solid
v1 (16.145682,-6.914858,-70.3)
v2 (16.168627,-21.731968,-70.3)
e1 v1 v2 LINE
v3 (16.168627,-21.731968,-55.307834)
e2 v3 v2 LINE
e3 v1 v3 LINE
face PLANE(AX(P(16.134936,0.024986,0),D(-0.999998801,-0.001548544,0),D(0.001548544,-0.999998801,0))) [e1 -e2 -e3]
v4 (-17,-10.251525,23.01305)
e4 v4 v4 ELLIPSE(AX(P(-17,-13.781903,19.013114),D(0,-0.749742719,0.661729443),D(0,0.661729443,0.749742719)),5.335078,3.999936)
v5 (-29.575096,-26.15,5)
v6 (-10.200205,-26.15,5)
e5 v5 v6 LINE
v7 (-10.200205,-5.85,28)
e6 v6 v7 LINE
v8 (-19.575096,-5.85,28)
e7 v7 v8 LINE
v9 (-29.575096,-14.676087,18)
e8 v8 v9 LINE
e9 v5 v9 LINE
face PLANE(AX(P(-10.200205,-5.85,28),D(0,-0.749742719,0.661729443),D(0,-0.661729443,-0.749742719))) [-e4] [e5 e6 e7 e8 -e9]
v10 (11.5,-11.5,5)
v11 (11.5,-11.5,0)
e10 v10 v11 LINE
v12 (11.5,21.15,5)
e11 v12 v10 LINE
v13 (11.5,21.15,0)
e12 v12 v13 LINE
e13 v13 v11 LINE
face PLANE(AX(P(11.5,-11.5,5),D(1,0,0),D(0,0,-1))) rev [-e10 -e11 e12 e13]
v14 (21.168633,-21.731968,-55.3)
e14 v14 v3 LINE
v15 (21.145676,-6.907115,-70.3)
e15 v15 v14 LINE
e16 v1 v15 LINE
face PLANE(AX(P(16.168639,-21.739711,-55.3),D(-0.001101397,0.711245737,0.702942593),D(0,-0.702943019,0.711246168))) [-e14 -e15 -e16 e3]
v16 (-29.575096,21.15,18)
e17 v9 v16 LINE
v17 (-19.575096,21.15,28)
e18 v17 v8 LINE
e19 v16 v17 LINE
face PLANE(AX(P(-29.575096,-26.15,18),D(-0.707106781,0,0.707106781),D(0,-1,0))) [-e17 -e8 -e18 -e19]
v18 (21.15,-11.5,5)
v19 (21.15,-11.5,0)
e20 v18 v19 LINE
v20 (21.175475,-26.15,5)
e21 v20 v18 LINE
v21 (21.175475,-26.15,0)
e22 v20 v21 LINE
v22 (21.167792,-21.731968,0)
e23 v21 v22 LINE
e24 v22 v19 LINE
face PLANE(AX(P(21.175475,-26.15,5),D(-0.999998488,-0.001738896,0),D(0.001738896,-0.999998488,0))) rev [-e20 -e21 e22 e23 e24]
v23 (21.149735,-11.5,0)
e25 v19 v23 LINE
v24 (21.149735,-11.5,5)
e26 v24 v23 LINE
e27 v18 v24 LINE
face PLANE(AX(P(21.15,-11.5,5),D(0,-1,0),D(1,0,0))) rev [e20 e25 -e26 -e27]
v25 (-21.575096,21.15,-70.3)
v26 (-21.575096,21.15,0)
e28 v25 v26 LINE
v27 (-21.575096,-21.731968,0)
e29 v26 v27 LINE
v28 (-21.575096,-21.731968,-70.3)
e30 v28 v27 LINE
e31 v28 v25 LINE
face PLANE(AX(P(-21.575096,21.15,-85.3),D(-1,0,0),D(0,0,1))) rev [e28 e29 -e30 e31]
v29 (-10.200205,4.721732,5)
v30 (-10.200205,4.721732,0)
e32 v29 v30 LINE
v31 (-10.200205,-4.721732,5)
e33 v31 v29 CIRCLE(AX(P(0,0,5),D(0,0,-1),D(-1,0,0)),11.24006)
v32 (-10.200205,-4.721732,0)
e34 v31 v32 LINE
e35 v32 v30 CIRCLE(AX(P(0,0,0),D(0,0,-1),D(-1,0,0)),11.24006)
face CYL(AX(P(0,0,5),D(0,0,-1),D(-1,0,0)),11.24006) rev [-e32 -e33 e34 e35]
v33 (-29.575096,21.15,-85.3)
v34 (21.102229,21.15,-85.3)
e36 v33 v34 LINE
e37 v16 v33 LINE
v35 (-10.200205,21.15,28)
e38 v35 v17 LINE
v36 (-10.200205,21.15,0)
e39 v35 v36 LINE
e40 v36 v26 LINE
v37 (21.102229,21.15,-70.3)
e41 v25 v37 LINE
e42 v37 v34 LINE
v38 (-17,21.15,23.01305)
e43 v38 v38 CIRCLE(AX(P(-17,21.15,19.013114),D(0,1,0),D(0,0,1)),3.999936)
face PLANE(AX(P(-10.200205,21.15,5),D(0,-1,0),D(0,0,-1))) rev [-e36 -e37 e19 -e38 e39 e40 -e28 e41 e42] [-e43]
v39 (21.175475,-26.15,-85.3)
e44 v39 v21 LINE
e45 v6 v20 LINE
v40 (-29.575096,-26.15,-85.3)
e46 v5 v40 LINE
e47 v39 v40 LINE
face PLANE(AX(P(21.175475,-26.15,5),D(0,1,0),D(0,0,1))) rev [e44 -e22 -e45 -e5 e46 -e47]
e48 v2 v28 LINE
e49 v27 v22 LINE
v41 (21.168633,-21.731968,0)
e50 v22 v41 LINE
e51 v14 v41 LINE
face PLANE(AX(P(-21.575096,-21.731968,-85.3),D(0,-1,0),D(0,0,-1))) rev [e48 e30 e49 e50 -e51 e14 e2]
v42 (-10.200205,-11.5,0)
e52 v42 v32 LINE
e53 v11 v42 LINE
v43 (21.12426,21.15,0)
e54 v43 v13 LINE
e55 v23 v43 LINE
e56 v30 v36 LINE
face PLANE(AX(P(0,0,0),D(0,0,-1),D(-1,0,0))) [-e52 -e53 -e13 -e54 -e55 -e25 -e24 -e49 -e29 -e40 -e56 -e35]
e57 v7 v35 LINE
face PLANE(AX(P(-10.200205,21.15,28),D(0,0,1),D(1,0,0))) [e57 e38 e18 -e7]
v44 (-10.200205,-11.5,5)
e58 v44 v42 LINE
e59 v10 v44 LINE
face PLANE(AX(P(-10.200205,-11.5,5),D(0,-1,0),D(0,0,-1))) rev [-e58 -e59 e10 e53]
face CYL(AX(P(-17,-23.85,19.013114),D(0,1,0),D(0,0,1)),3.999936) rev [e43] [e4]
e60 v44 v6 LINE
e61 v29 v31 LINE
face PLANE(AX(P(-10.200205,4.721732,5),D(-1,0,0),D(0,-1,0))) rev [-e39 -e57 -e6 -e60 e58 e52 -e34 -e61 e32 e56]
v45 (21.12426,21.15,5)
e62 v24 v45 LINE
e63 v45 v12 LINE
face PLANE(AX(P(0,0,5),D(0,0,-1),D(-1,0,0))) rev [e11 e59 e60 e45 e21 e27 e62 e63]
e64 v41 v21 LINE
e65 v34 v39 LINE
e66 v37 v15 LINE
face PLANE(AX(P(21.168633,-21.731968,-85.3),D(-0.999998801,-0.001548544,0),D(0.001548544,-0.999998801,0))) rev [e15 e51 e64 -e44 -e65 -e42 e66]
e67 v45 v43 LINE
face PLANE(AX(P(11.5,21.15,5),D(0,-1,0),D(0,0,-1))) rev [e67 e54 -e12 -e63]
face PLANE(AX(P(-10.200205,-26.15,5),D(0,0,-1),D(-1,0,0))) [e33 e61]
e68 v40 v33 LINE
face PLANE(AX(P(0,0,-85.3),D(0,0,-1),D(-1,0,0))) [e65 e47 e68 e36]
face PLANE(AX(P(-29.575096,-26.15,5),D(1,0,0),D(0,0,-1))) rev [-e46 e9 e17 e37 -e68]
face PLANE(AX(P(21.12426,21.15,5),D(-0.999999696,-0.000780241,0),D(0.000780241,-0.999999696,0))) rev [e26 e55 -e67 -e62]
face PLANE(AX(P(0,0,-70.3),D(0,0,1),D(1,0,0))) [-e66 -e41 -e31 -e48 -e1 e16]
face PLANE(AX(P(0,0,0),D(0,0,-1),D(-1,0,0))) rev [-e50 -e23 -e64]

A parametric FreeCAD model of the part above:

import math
import FreeCAD as App
import Part
import Sketcher
from FreeCAD import Vector


def edges_at(feature, points):
    """Names of the edges that pass closest to the given points."""
    edges = feature.Shape.Edges
    near = lambda p: min(range(len(edges)), key=lambda i: edges[i].distToShape(Part.Vertex(*p))[0])
    return sorted({f"Edge{near(p) + 1}" for p in points})


def add_polygon(sketch, points):
    """Adds a closed chain of lines whose ends are joined by coincident constraints."""
    first, n = sketch.GeometryCount, len(points)
    for a, b in zip(points, points[1:] + points[:1]):
        sketch.addGeometry(Part.LineSegment(App.Vector(*a, 0), App.Vector(*b, 0)), False)
    for i in range(n):
        sketch.addConstraint(Sketcher.Constraint("Coincident", first + i, 2, first + (i + 1) % n, 1))

doc = App.newDocument("Part")
body = doc.addObject("PartDesign::Body", "Body")

# Sketch on XY plane
sketch1 = body.newObject("Sketcher::SketchObject", "Sketch")
sketch1.AttachmentSupport = (doc.getObject("XY_Plane"), [""])
sketch1.MapMode = "FlatFace"
sketch1.addGeometry([
    Part.LineSegment(Vector(-10, -12, 0), Vector(-10, -5, 0)),  # 0
    Part.ArcOfCircle(Part.Circle(Vector(0, 0, 0), Vector(0, 0, 1), 11), math.radians(155), math.radians(205)),  # 1
    Part.LineSegment(Vector(-10, 5, 0), Vector(-10, 21, 0)),  # 2
    Part.LineSegment(Vector(-10, 21, 0), Vector(-30, 21, 0)),  # 3
    Part.LineSegment(Vector(-30, 21, 0), Vector(-30, -26, 0)),  # 4
    Part.LineSegment(Vector(-30, -26, 0), Vector(21, -26, 0)),  # 5
    Part.LineSegment(Vector(21, -26, 0), Vector(21, -12, 0)),  # 6
    Part.LineSegment(Vector(21, -12, 0), Vector(21, 21, 0)),  # 7
    Part.LineSegment(Vector(21, 21, 0), Vector(12, 21, 0)),  # 8
    Part.LineSegment(Vector(12, 21, 0), Vector(12, -12, 0)),  # 9
    Part.LineSegment(Vector(12, -12, 0), Vector(-10, -12, 0)),  # 10
], False)
sketch1.addConstraint([
    Sketcher.Constraint("Coincident", 0, 2, 1, 2),
    Sketcher.Constraint("Coincident", 1, 1, 2, 1),
    Sketcher.Constraint("Coincident", 2, 2, 3, 1),
    Sketcher.Constraint("Coincident", 3, 2, 4, 1),
    Sketcher.Constraint("Coincident", 4, 2, 5, 1),
    Sketcher.Constraint("Coincident", 5, 2, 6, 1),
    Sketcher.Constraint("Coincident", 6, 2, 7, 1),
    Sketcher.Constraint("Coincident", 7, 2, 8, 1),
    Sketcher.Constraint("Coincident", 8, 2, 9, 1),
    Sketcher.Constraint("Coincident", 9, 2, 10, 1),
    Sketcher.Constraint("Coincident", 10, 2, 0, 1),
    Sketcher.Constraint("Vertical", 0),
    Sketcher.Constraint("Vertical", 2),
    Sketcher.Constraint("Horizontal", 3),
    Sketcher.Constraint("Vertical", 4),
    Sketcher.Constraint("Horizontal", 5),
    Sketcher.Constraint("Horizontal", 8),
    Sketcher.Constraint("Vertical", 9),
    Sketcher.Constraint("Horizontal", 10),
    Sketcher.Constraint("Coincident", 1, 3, -1, 1),
    Sketcher.Constraint("Horizontal", 3, 2, 7, 2),
    Sketcher.Constraint("Horizontal", 6, 2, 9, 2),
    Sketcher.Constraint("Vertical", 0, 2, 1, 1),
    Sketcher.Constraint("DistanceY", 4, 2, 4, 1, 47.3),
    Sketcher.Constraint("DistanceY", 9, 2, 9, 1, 32.65),
    Sketcher.Constraint("DistanceY", 6, 2, -1, 1, 11.5),
    Sketcher.Constraint("DistanceX", -1, 1, 8, 2, 11.5),
    Sketcher.Constraint("DistanceX", -1, 1, 6, 2, 21.15),
    Sketcher.Constraint("Radius", 1, 11.24006),
    Sketcher.Constraint("DistanceX", 3, 2, 3, 1, 19.37489),
    Sketcher.Constraint("DistanceX", 5, 1, 5, 2, 50.75057),
    Sketcher.Constraint("DistanceX", 8, 2, 8, 1, 9.62426),
    Sketcher.Constraint("DistanceY", 0, 1, 0, 2, 6.778268),
])
pad1 = body.newObject("PartDesign::Pad", "Pad")
pad1.Profile = sketch1
pad1.Length = 5

# Sketch on YZ plane
sketch2 = body.newObject("Sketcher::SketchObject", "Sketch001")
sketch2.AttachmentSupport = (doc.getObject("YZ_Plane"), [""])
sketch2.MapMode = "FlatFace"
sketch2.AttachmentOffset = App.Placement(Vector(0, 0, -29.575096), App.Rotation())
add_polygon(sketch2, [(21, 28), (21, 5), (-26, 5), (-6, 28)])  # lines 0-3
sketch2.addConstraint([
    Sketcher.Constraint("Vertical", 0),
    Sketcher.Constraint("Horizontal", 1),
    Sketcher.Constraint("Horizontal", 3),
    Sketcher.Constraint("DistanceX", 3, 1, 3, 2, 27.0),
    Sketcher.Constraint("DistanceY", 0, 2, 0, 1, 23.0),
    Sketcher.Constraint("DistanceX", 1, 2, 1, 1, 47.3),
    Sketcher.Constraint("DistanceY", -1, 1, 0, 2, 5.0),
    Sketcher.Constraint("DistanceX", -1, 1, 0, 2, 21.15),
])
pad2 = body.newObject("PartDesign::Pad", "Pad001")
pad2.Profile = sketch2
pad2.Length = 19.374886

# Sketch on XZ plane
sketch3 = body.newObject("Sketcher::SketchObject", "Sketch002")
sketch3.AttachmentSupport = (doc.getObject("XZ_Plane"), [""])
sketch3.MapMode = "FlatFace"
sketch3.AttachmentOffset = App.Placement(Vector(0, 0, -21.15), App.Rotation())
sketch3.addGeometry(Part.Circle(Vector(-17, 19, 0), Vector(0, 0, 1), 4), False)
sketch3.addConstraint([
    Sketcher.Constraint("DistanceX", 0, 3, -1, 1, 17.0),
    Sketcher.Constraint("Diameter", 0, 7.999871),
    Sketcher.Constraint("DistanceY", -1, 1, 0, 3, 19.013114),
])
pocket1 = body.newObject("PartDesign::Pocket", "Pocket")
pocket1.Profile = sketch3
pocket1.Length = 45
pocket1.Reversed = True

# Sketch on XY plane
sketch4 = body.newObject("Sketcher::SketchObject", "Sketch003")
sketch4.AttachmentSupport = (doc.getObject("XY_Plane"), [""])
sketch4.MapMode = "FlatFace"
add_polygon(sketch4, [(21.2, -26.1), (-29.6, -26.1), (-29.6, 21.1), (-21.6, 21.1), (-21.6, -21.7), (21.2, -21.7)])  # lines 0-5
sketch4.addConstraint([
    Sketcher.Constraint("Horizontal", 0),
    Sketcher.Constraint("Vertical", 1),
    Sketcher.Constraint("Horizontal", 2),
    Sketcher.Constraint("Vertical", 3),
    Sketcher.Constraint("Horizontal", 4),
    Sketcher.Constraint("DistanceX", 2, 1, 2, 2, 8.0),
    Sketcher.Constraint("DistanceY", 1, 1, 1, 2, 47.3),
    Sketcher.Constraint("DistanceY", 0, 2, -1, 1, 26.15),
    Sketcher.Constraint("DistanceX", 0, 2, 0, 1, 50.75057),
    Sketcher.Constraint("DistanceX", 4, 1, 4, 2, 42.743729),
    Sketcher.Constraint("DistanceY", 3, 2, 3, 1, 42.881968),
    Sketcher.Constraint("DistanceX", 0, 2, -1, 1, 29.575096),
])
pad3 = body.newObject("PartDesign::Pad", "Pad002")
pad3.Profile = sketch4
pad3.Length = 85.3
pad3.Reversed = True

# Sketch on XY plane
sketch5 = body.newObject("Sketcher::SketchObject", "Sketch004")
sketch5.AttachmentSupport = (doc.getObject("XY_Plane"), [""])
sketch5.MapMode = "FlatFace"
sketch5.AttachmentOffset = App.Placement(Vector(0, 0, -85.3), App.Rotation())
add_polygon(sketch5, [(21.1, 21.1), (21.2, -21.7), (21.2, -26.1), (-29.6, -26.1), (-29.6, 21.1)])  # lines 0-4
sketch5.addConstraint([
    Sketcher.Constraint("Horizontal", 2),
    Sketcher.Constraint("Vertical", 3),
    Sketcher.Constraint("Horizontal", 4),
    Sketcher.Constraint("Parallel", 0, 1),
    Sketcher.Constraint("DistanceY", 3, 1, 3, 2, 47.3),
    Sketcher.Constraint("DistanceY", 1, 2, -1, 1, 26.15),
    Sketcher.Constraint("DistanceX", 2, 2, 2, 1, 50.75057),
    Sketcher.Constraint("Distance", 0, 42.88202),
    Sketcher.Constraint("DistanceX", 4, 1, 4, 2, 50.677324),
    Sketcher.Constraint("DistanceX", -1, 1, 4, 2, 21.102229),
])
pad4 = body.newObject("PartDesign::Pad", "Pad003")
pad4.Profile = sketch5
pad4.Length = 15

# Sketch on an angled plane
sketch6 = body.newObject("Sketcher::SketchObject", "Sketch005")
sketch6.Placement = App.Placement(Vector(21.13493, 0.032728, 0), App.Rotation(Vector(0, 0, -1), Vector(-0.001548544, 0.999998801, 0), Vector(0.999998801, 0.001548544, 0), "ZXY"))
add_polygon(sketch6, [(70, -22), (70, -7), (55, -22)])  # lines 0-2
sketch6.addConstraint([
    Sketcher.Constraint("Vertical", 0),
    Sketcher.Constraint("Horizontal", 2),
    Sketcher.Constraint("DistanceX", 2, 1, 2, 2, 15.0),
    Sketcher.Constraint("DistanceX", -1, 1, 0, 2, 70.3),
    Sketcher.Constraint("DistanceY", 0, 1, 0, 2, 14.824871),
    Sketcher.Constraint("DistanceY", 0, 2, -1, 1, 6.939852),
])
pad5 = body.newObject("PartDesign::Pad", "Pad004")
pad5.Profile = sketch6
pad5.Length = 5
pad5.Reversed = True
doc.recompute()

chamfer = body.newObject("PartDesign::Chamfer", "Chamfer")
chamfer.Base = (pad5, edges_at(pad5, [(-29.575, 7.65, 28)]))
chamfer.Size = 10

doc.recompute()
